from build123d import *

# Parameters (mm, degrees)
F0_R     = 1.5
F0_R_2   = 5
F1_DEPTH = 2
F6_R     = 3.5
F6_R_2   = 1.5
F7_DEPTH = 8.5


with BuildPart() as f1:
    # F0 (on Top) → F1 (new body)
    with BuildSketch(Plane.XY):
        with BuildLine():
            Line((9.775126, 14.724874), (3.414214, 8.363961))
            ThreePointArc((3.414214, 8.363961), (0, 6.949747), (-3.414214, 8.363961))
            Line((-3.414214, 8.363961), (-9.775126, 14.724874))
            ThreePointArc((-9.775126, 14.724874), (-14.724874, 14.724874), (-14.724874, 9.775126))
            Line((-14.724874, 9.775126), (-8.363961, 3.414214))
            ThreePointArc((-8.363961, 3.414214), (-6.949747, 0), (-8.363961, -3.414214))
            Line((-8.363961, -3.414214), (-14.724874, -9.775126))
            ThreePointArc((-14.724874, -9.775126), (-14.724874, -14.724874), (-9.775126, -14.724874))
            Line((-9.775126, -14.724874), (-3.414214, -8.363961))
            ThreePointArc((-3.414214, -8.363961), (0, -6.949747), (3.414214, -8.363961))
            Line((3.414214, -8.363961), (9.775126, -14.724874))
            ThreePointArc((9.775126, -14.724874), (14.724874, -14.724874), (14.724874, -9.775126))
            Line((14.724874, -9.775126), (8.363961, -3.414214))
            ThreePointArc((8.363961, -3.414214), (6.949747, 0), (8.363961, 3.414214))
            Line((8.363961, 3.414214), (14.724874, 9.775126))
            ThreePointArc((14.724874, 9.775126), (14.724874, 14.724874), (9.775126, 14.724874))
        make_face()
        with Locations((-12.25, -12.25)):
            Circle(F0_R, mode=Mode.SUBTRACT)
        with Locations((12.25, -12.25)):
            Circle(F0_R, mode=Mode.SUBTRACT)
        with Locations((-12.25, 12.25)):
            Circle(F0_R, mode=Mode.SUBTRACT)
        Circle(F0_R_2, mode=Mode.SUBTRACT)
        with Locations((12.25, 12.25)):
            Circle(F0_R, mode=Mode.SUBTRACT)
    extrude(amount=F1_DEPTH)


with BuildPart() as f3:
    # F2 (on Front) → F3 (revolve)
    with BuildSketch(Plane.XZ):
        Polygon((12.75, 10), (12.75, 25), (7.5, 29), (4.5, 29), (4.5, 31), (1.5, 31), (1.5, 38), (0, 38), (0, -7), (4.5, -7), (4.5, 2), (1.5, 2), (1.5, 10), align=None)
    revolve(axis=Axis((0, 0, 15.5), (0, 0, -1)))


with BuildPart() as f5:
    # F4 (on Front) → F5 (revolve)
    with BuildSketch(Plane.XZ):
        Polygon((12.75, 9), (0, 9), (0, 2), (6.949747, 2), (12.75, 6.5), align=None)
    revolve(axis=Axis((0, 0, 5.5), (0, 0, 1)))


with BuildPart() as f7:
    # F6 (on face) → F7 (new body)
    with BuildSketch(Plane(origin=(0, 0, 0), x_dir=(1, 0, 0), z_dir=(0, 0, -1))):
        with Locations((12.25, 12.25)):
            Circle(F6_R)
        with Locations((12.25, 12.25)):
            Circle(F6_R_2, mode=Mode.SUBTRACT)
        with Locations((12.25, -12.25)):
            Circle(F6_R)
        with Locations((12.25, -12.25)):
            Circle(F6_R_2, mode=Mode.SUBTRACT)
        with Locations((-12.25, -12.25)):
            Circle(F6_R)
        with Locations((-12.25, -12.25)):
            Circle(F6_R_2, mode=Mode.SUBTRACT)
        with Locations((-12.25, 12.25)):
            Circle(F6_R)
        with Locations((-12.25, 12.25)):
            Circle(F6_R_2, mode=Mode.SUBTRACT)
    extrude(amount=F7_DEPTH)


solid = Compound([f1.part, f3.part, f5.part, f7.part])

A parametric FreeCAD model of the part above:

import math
import FreeCAD as App
import Part
import Sketcher

V = App.Vector


def add_polygon(sketch, points):
    """Adds a closed chain of lines whose ends are joined by coincident constraints."""
    first, n = sketch.GeometryCount, len(points)
    for a, b in zip(points, points[1:] + points[:1]):
        sketch.addGeometry(Part.LineSegment(App.Vector(*a, 0), App.Vector(*b, 0)), False)
    for i in range(n):
        sketch.addConstraint(Sketcher.Constraint("Coincident", first + i, 2, first + (i + 1) % n, 1))

doc = App.newDocument("Part")
body = doc.addObject("PartDesign::Body", "Body")

# Sketch on XY plane
sketch1 = doc.addObject("Sketcher::SketchObject", "Sketch")
body.addObject(sketch1)
sketch1.AttachmentSupport = (doc.XY_Plane, [""])
sketch1.MapMode = "FlatFace"
sketch1.addGeometry(Part.LineSegment(V(9.775126, 14.724874, 0), V(3.414214, 8.363961, 0)), False)
sketch1.addGeometry(Part.ArcOfCircle(Part.Circle(V(0, 11.778174, 0), V(0, 0, 1), 4.828427), math.radians(-135.000007), math.radians(-44.999993)), False)
sketch1.addGeometry(Part.LineSegment(V(-3.414214, 8.363961, 0), V(-9.775126, 14.724874, 0)), False)
sketch1.addGeometry(Part.ArcOfCircle(Part.Circle(V(-12.25, 12.25, 0), V(0, 0, 1), 3.5), math.radians(45), math.radians(225)), False)
sketch1.addGeometry(Part.LineSegment(V(-14.724874, 9.775126, 0), V(-8.363961, 3.414214, 0)), False)
sketch1.addGeometry(Part.ArcOfCircle(Part.Circle(V(-11.778174, 0, 0), V(0, 0, 1), 4.828427), math.radians(-45.000007), math.radians(45.000007)), False)
sketch1.addGeometry(Part.LineSegment(V(-8.363961, -3.414214, 0), V(-14.724874, -9.775126, 0)), False)
sketch1.addGeometry(Part.ArcOfCircle(Part.Circle(V(-12.25, -12.25, 0), V(0, 0, 1), 3.5), math.radians(135), math.radians(315)), False)
sketch1.addGeometry(Part.LineSegment(V(-9.775126, -14.724874, 0), V(-3.414214, -8.363961, 0)), False)
sketch1.addGeometry(Part.ArcOfCircle(Part.Circle(V(0, -11.778174, 0), V(0, 0, 1), 4.828427), math.radians(44.999993), math.radians(135.000007)), False)
sketch1.addGeometry(Part.LineSegment(V(3.414214, -8.363961, 0), V(9.775126, -14.724874, 0)), False)
sketch1.addGeometry(Part.ArcOfCircle(Part.Circle(V(12.25, -12.25, 0), V(0, 0, 1), 3.5), math.radians(-135), math.radians(45)), False)
sketch1.addGeometry(Part.LineSegment(V(14.724874, -9.775126, 0), V(8.363961, -3.414214, 0)), False)
sketch1.addGeometry(Part.ArcOfCircle(Part.Circle(V(11.778174, 0, 0), V(0, 0, 1), 4.828427), math.radians(134.999993), math.radians(225.000007)), False)
sketch1.addGeometry(Part.LineSegment(V(8.363961, 3.414214, 0), V(14.724874, 9.775126, 0)), False)
sketch1.addGeometry(Part.ArcOfCircle(Part.Circle(V(12.25, 12.25, 0), V(0, 0, 1), 3.5), math.radians(-45), math.radians(135)), False)
sketch1.addGeometry(Part.Circle(V(-12.25, -12.25, 0), V(0, 0, 1), 1.5), False)
sketch1.addGeometry(Part.Circle(V(12.25, -12.25, 0), V(0, 0, 1), 1.5), False)
sketch1.addGeometry(Part.Circle(V(-12.25, 12.25, 0), V(0, 0, 1), 1.5), False)
sketch1.addGeometry(Part.Circle(V(0, 0, 0), V(0, 0, 1), 5), False)
sketch1.addGeometry(Part.Circle(V(12.25, 12.25, 0), V(0, 0, 1), 1.5), False)
sketch1.addConstraint(Sketcher.Constraint("Tangent", 0, 2, 1, 2))
sketch1.addConstraint(Sketcher.Constraint("Tangent", 1, 1, 2, 1))
sketch1.addConstraint(Sketcher.Constraint("Tangent", 2, 2, 3, 1))
sketch1.addConstraint(Sketcher.Constraint("Tangent", 3, 2, 4, 1))
sketch1.addConstraint(Sketcher.Constraint("Tangent", 4, 2, 5, 2))
sketch1.addConstraint(Sketcher.Constraint("Tangent", 5, 1, 6, 1))
sketch1.addConstraint(Sketcher.Constraint("Tangent", 6, 2, 7, 1))
sketch1.addConstraint(Sketcher.Constraint("Tangent", 7, 2, 8, 1))
sketch1.addConstraint(Sketcher.Constraint("Tangent", 8, 2, 9, 2))
sketch1.addConstraint(Sketcher.Constraint("Tangent", 9, 1, 10, 1))
sketch1.addConstraint(Sketcher.Constraint("Tangent", 10, 2, 11, 1))
sketch1.addConstraint(Sketcher.Constraint("Tangent", 11, 2, 12, 1))
sketch1.addConstraint(Sketcher.Constraint("Tangent", 12, 2, 13, 2))
sketch1.addConstraint(Sketcher.Constraint("Tangent", 13, 1, 14, 1))
sketch1.addConstraint(Sketcher.Constraint("Tangent", 14, 2, 15, 1))
sketch1.addConstraint(Sketcher.Constraint("Tangent", 15, 2, 0, 1))
sketch1.addConstraint(Sketcher.Constraint("Coincident", 19, 3, -1, 1))
sketch1.addConstraint(Sketcher.Constraint("Coincident", 16, 3, 7, 3))
sketch1.addConstraint(Sketcher.Constraint("Coincident", 17, 3, 11, 3))
sketch1.addConstraint(Sketcher.Constraint("Coincident", 18, 3, 3, 3))
sketch1.addConstraint(Sketcher.Constraint("Coincident", 20, 3, 15, 3))
sketch1.addConstraint(Sketcher.Constraint("Equal", 1, 5))
sketch1.addConstraint(Sketcher.Constraint("Equal", 3, 7))
sketch1.addConstraint(Sketcher.Constraint("Equal", 5, 9))
sketch1.addConstraint(Sketcher.Constraint("Equal", 7, 11))
sketch1.addConstraint(Sketcher.Constraint("Equal", 9, 13))
sketch1.addConstraint(Sketcher.Constraint("Equal", 11, 15))
sketch1.addConstraint(Sketcher.Constraint("Equal", 16, 17))
sketch1.addConstraint(Sketcher.Constraint("Equal", 17, 18))
sketch1.addConstraint(Sketcher.Constraint("Equal", 18, 20))
sketch1.addConstraint(Sketcher.Constraint("Symmetric", 1, 3, 9, 3, -1, 1))
sketch1.addConstraint(Sketcher.Constraint("Symmetric", 3, 3, 11, 3, -1, 1))
sketch1.addConstraint(Sketcher.Constraint("Symmetric", 5, 3, 13, 3, -1, 1))
sketch1.addConstraint(Sketcher.Constraint("Symmetric", 7, 3, 15, 3, -1, 1))
sketch1.addConstraint(Sketcher.Constraint("Symmetric", 7, 3, 11, 3, -2))
sketch1.addConstraint(Sketcher.Constraint("PointOnObject", 1, 3, -2))
sketch1.addConstraint(Sketcher.Constraint("PointOnObject", 5, 3, -1))
sketch1.addConstraint(Sketcher.Constraint("Perpendicular", 0, 2))
sketch1.addConstraint(Sketcher.Constraint("Parallel", 2, 4))
sketch1.addConstraint(Sketcher.Constraint("Equal", 2, 4))
sketch1.addConstraint(Sketcher.Constraint("Diameter", 16, 3.0))
sketch1.addConstraint(Sketcher.Constraint("Diameter", 19, 10.0))
sketch1.addConstraint(Sketcher.Constraint("Radius", 3, 3.5))
sketch1.addConstraint(Sketcher.Constraint("DistanceY", 7, 3, 3, 3, 24.5))
sketch1.addConstraint(Sketcher.Constraint("Radius", 1, 4.828427))
pad1 = doc.addObject("PartDesign::Pad", "Pad")
body.addObject(pad1)
pad1.Profile = sketch1
pad1.Length = 2
body2 = doc.addObject("PartDesign::Body", "Body001")

# Sketch on XZ plane
sketch2 = doc.addObject("Sketcher::SketchObject", "Sketch001")
body2.addObject(sketch2)
sketch2.AttachmentSupport = (doc.getObject("XZ_Plane001"), [""])
sketch2.MapMode = "FlatFace"
add_polygon(sketch2, [(12.75, 10), (12.75, 25), (7.5, 29), (4.5, 29), (4.5, 31), (1.5, 31), (1.5, 38), (0, 38), (0, -7), (4.5, -7), (4.5, 2), (1.5, 2), (1.5, 10)])  # lines 0-12
sketch2.addConstraint(Sketcher.Constraint("Vertical", 0))
sketch2.addConstraint(Sketcher.Constraint("Horizontal", 2))
sketch2.addConstraint(Sketcher.Constraint("Vertical", 3))
sketch2.addConstraint(Sketcher.Constraint("Horizontal", 4))
sketch2.addConstraint(Sketcher.Constraint("Vertical", 5))
sketch2.addConstraint(Sketcher.Constraint("Horizontal", 6))
sketch2.addConstraint(Sketcher.Constraint("Vertical", 7))
sketch2.addConstraint(Sketcher.Constraint("Horizontal", 8))
sketch2.addConstraint(Sketcher.Constraint("Vertical", 9))
sketch2.addConstraint(Sketcher.Constraint("Horizontal", 10))
sketch2.addConstraint(Sketcher.Constraint("Vertical", 11))
sketch2.addConstraint(Sketcher.Constraint("Horizontal", 12))
sketch2.addConstraint(Sketcher.Constraint("PointOnObject", 6, 2, -2))
sketch2.addConstraint(Sketcher.Constraint("Vertical", 3, 2, 8, 2))
sketch2.addConstraint(Sketcher.Constraint("Vertical", 5, 2, 10, 2))
sketch2.addConstraint(Sketcher.Constraint("Equal", 2, 4))
sketch2.addConstraint(Sketcher.Constraint("DistanceX", 2, 2, 2, 1, 3.0))
sketch2.addConstraint(Sketcher.Constraint("DistanceY", 0, 1, 0, 2, 15.0))
sketch2.addConstraint(Sketcher.Constraint("DistanceY", 3, 1, 3, 2, 2.0))
sketch2.addConstraint(Sketcher.Constraint("DistanceY", 5, 1, 5, 2, 7.0))
sketch2.addConstraint(Sketcher.Constraint("DistanceY", 7, 2, 7, 1, 45.0))
sketch2.addConstraint(Sketcher.Constraint("DistanceY", 9, 1, 9, 2, 9.0))
sketch2.addConstraint(Sketcher.Constraint("DistanceY", 11, 1, 11, 2, 8.0))
sketch2.addConstraint(Sketcher.Constraint("DistanceX", 6, 2, 6, 1, 1.5))
sketch2.addConstraint(Sketcher.Constraint("DistanceY", -1, 1, 0, 2, 25.0))
sketch2.addConstraint(Sketcher.Constraint("DistanceX", 12, 1, 12, 2, 11.25))
revolution = doc.addObject("PartDesign::Revolution", "Revolution")
body2.addObject(revolution)
revolution.Profile = sketch2
revolution.ReferenceAxis = (sketch2, ["V_Axis"])
revolution.Angle = 360
body3 = doc.addObject("PartDesign::Body", "Body002")

# Sketch on XZ plane
sketch3 = doc.addObject("Sketcher::SketchObject", "Sketch002")
body3.addObject(sketch3)
sketch3.AttachmentSupport = (doc.getObject("XZ_Plane002"), [""])
sketch3.MapMode = "FlatFace"
add_polygon(sketch3, [(12.75, 9), (0, 9), (0, 2), (6.949747, 2), (12.75, 6.5)])  # lines 0-4
sketch3.addConstraint(Sketcher.Constraint("Horizontal", 0))
sketch3.addConstraint(Sketcher.Constraint("Vertical", 1))
sketch3.addConstraint(Sketcher.Constraint("Horizontal", 2))
sketch3.addConstraint(Sketcher.Constraint("Vertical", 4))
sketch3.addConstraint(Sketcher.Constraint("PointOnObject", 0, 2, -2))
sketch3.addConstraint(Sketcher.Constraint("DistanceY", 1, 2, 1, 1, 7.0))
sketch3.addConstraint(Sketcher.Constraint("DistanceY", 4, 1, 4, 2, 2.5))
sketch3.addConstraint(Sketcher.Constraint("DistanceY", -1, 1, 0, 2, 9.0))
sketch3.addConstraint(Sketcher.Constraint("DistanceX", 0, 2, 0, 1, 12.75))
sketch3.addConstraint(Sketcher.Constraint("Distance", 3, 7.341181))
revolution2 = doc.addObject("PartDesign::Revolution", "Revolution001")
body3.addObject(revolution2)
revolution2.Profile = sketch3
revolution2.ReferenceAxis = (sketch3, ["V_Axis"])
revolution2.Angle = 360
body4 = doc.addObject("PartDesign::Body", "Body003")
body4.AllowCompound = True

# Sketch on XY plane
sketch4 = doc.addObject("Sketcher::SketchObject", "Sketch003")
body4.addObject(sketch4)
sketch4.AttachmentSupport = (doc.getObject("XY_Plane003"), [""])
sketch4.MapMode = "FlatFace"
sketch4.addGeometry(Part.Circle(V(12.25, -12.25, 0), V(0, 0, 1), 3.5), False)
sketch4.addGeometry(Part.Circle(V(12.25, -12.25, 0), V(0, 0, 1), 1.5), False)
sketch4.addGeometry(Part.Circle(V(12.25, 12.25, 0), V(0, 0, 1), 3.5), False)
sketch4.addGeometry(Part.Circle(V(12.25, 12.25, 0), V(0, 0, 1), 1.5), False)
sketch4.addGeometry(Part.Circle(V(-12.25, 12.25, 0), V(0, 0, 1), 3.5), False)
sketch4.addGeometry(Part.Circle(V(-12.25, 12.25, 0), V(0, 0, 1), 1.5), False)
sketch4.addGeometry(Part.Circle(V(-12.25, -12.25, 0), V(0, 0, 1), 3.5), False)
sketch4.addGeometry(Part.Circle(V(-12.25, -12.25, 0), V(0, 0, 1), 1.5), False)
sketch4.addConstraint(Sketcher.Constraint("Coincident", 1, 3, 0, 3))
sketch4.addConstraint(Sketcher.Constraint("Coincident", 3, 3, 2, 3))
sketch4.addConstraint(Sketcher.Constraint("Coincident", 5, 3, 4, 3))
sketch4.addConstraint(Sketcher.Constraint("Coincident", 7, 3, 6, 3))
sketch4.addConstraint(Sketcher.Constraint("Equal", 0, 2))
sketch4.addConstraint(Sketcher.Constraint("Equal", 1, 3))
sketch4.addConstraint(Sketcher.Constraint("Equal", 2, 4))
sketch4.addConstraint(Sketcher.Constraint("Equal", 3, 5))
sketch4.addConstraint(Sketcher.Constraint("Equal", 4, 6))
sketch4.addConstraint(Sketcher.Constraint("Equal", 5, 7))
sketch4.addConstraint(Sketcher.Constraint("Symmetric", 0, 3, 4, 3, -1, 1))
sketch4.addConstraint(Sketcher.Constraint("Symmetric", 2, 3, 6, 3, -1, 1))
sketch4.addConstraint(Sketcher.Constraint("Symmetric", 2, 3, 4, 3, -2))
sketch4.addConstraint(Sketcher.Constraint("Diameter", 0, 7.0))
sketch4.addConstraint(Sketcher.Constraint("Diameter", 1, 3.0))
sketch4.addConstraint(Sketcher.Constraint("DistanceY", 0, 3, 2, 3, 24.5))
sketch4.addConstraint(Sketcher.Constraint("DistanceX", 4, 3, 2, 3, 24.5))
pad2 = doc.addObject("PartDesign::Pad", "Pad001")
body4.addObject(pad2)
pad2.Profile = sketch4
pad2.Length = 8.5
pad2.Reversed = True

doc.recompute()
